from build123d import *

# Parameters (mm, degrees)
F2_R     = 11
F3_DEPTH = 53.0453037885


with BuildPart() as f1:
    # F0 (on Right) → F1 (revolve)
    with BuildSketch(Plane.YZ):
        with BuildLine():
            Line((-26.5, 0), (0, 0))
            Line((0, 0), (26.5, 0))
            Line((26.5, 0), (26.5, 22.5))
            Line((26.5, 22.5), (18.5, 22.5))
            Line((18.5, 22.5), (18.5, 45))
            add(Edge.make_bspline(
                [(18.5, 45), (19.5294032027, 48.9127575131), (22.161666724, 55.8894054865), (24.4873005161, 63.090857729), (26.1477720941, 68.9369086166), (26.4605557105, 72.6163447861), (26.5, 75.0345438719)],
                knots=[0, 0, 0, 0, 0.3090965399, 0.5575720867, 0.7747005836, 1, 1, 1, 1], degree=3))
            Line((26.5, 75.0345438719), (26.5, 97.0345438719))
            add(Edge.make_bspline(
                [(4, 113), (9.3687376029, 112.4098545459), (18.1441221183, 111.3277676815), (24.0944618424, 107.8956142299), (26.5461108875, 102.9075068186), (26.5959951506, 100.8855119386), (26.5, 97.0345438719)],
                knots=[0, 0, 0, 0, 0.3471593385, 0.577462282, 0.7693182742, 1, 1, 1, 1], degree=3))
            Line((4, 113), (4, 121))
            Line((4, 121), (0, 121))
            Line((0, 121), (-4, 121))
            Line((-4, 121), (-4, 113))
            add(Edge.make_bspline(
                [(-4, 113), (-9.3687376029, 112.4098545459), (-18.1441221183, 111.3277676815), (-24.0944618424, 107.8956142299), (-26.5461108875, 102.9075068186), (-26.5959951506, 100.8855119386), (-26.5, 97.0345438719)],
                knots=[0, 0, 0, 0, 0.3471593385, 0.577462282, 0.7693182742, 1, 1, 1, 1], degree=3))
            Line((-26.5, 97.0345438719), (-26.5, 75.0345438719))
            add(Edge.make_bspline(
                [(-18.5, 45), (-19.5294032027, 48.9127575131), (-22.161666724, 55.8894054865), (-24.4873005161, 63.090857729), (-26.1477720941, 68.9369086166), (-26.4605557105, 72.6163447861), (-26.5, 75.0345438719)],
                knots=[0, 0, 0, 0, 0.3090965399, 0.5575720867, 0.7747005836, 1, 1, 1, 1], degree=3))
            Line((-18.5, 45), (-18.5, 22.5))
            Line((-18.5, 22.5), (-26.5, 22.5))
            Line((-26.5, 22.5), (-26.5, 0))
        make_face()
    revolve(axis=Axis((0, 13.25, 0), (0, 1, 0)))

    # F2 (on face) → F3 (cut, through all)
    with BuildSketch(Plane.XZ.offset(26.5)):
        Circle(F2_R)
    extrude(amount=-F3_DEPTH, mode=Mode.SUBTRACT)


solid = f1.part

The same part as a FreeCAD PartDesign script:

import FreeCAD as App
import Part
import Sketcher
Q = App.Units.Quantity

doc = App.newDocument("Part")
body = doc.addObject("PartDesign::Body", "Body")

sketch1 = doc.addObject("Sketcher::SketchObject", "Sketch")
body.addObject(sketch1)
sketch1.AttachmentSupport = (doc.YZ_Plane, [""])
sketch1.MapMode = "FlatFace"
sketch1.addGeometry([
    Part.LineSegment(App.Vector(-26.5, 0, 0), App.Vector(26.5, 0, 0)),
    Part.LineSegment(App.Vector(26.5, 0, 0), App.Vector(26.5, 22.5, 0)),
    Part.LineSegment(App.Vector(26.5, 22.5, 0), App.Vector(18.5, 22.5, 0)),
    Part.LineSegment(App.Vector(18.5, 22.5, 0), App.Vector(18.5, 45, 0)),
    Part.BSplineCurve([App.Vector(18.5, 45, 0), App.Vector(19.529403, 48.912758, 0), App.Vector(22.161667, 55.889405, 0), App.Vector(24.487301, 63.090858, 0), App.Vector(26.147772, 68.936909, 0), App.Vector(26.460556, 72.616345, 0), App.Vector(26.5, 75.034544, 0)], [4, 1, 1, 1, 4], [0, 0.30909654, 0.557572087, 0.774700584, 1], False, 3, [1, 1, 1, 1, 1, 1, 1], False),
    Part.LineSegment(App.Vector(26.5, 75.034544, 0), App.Vector(26.5, 97.034544, 0)),
    Part.BSplineCurve([App.Vector(4, 113, 0), App.Vector(9.368738, 112.409855, 0), App.Vector(18.144122, 111.327768, 0), App.Vector(24.094462, 107.895614, 0), App.Vector(26.546111, 102.907507, 0), App.Vector(26.595995, 100.885512, 0), App.Vector(26.5, 97.034544, 0)], [4, 1, 1, 1, 4], [0, 0.347159339, 0.577462282, 0.769318274, 1], False, 3, [1, 1, 1, 1, 1, 1, 1], False),
    Part.LineSegment(App.Vector(4, 113, 0), App.Vector(4, 121, 0)),
    Part.LineSegment(App.Vector(4, 121, 0), App.Vector(-4, 121, 0)),
    Part.LineSegment(App.Vector(-4, 121, 0), App.Vector(-4, 113, 0)),
    Part.BSplineCurve([App.Vector(-4, 113, 0), App.Vector(-9.368738, 112.409855, 0), App.Vector(-18.144122, 111.327768, 0), App.Vector(-24.094462, 107.895614, 0), App.Vector(-26.546111, 102.907507, 0), App.Vector(-26.595995, 100.885512, 0), App.Vector(-26.5, 97.034544, 0)], [4, 1, 1, 1, 4], [0, 0.347159339, 0.577462282, 0.769318274, 1], False, 3, [1, 1, 1, 1, 1, 1, 1], False),
    Part.LineSegment(App.Vector(-26.5, 97.034544, 0), App.Vector(-26.5, 75.034544, 0)),
    Part.BSplineCurve([App.Vector(-18.5, 45, 0), App.Vector(-19.529403, 48.912758, 0), App.Vector(-22.161667, 55.889405, 0), App.Vector(-24.487301, 63.090858, 0), App.Vector(-26.147772, 68.936909, 0), App.Vector(-26.460556, 72.616345, 0), App.Vector(-26.5, 75.034544, 0)], [4, 1, 1, 1, 4], [0, 0.30909654, 0.557572087, 0.774700584, 1], False, 3, [1, 1, 1, 1, 1, 1, 1], False),
    Part.LineSegment(App.Vector(-18.5, 45, 0), App.Vector(-18.5, 22.5, 0)),
    Part.LineSegment(App.Vector(-18.5, 22.5, 0), App.Vector(-26.5, 22.5, 0)),
    Part.LineSegment(App.Vector(-26.5, 22.5, 0), App.Vector(-26.5, 0, 0)),
], False)
sketch1.addConstraint([
    Sketcher.Constraint("Block", 4),
    Sketcher.Constraint("Block", 6),
    Sketcher.Constraint("Block", 10),
    Sketcher.Constraint("Block", 12),
    Sketcher.Constraint("Coincident", 0, 2, 1, 1),
    Sketcher.Constraint("Coincident", 1, 2, 2, 1),
    Sketcher.Constraint("Coincident", 2, 2, 3, 1),
    Sketcher.Constraint("Coincident", 3, 2, 4, 1),
    Sketcher.Constraint("Coincident", 4, 2, 5, 1),
    Sketcher.Constraint("Coincident", 5, 2, 6, 2),
    Sketcher.Constraint("Coincident", 6, 1, 7, 1),
    Sketcher.Constraint("Coincident", 7, 2, 8, 1),
    Sketcher.Constraint("Coincident", 8, 2, 9, 1),
    Sketcher.Constraint("Coincident", 9, 2, 10, 1),
    Sketcher.Constraint("Coincident", 10, 2, 11, 1),
    Sketcher.Constraint("Coincident", 11, 2, 12, 2),
    Sketcher.Constraint("Coincident", 12, 1, 13, 1),
    Sketcher.Constraint("Coincident", 13, 2, 14, 1),
    Sketcher.Constraint("Coincident", 14, 2, 15, 1),
    Sketcher.Constraint("Coincident", 15, 2, 0, 1),
    Sketcher.Constraint("Horizontal", 0),
    Sketcher.Constraint("Vertical", 1),
    Sketcher.Constraint("Horizontal", 2),
    Sketcher.Constraint("Vertical", 3),
    Sketcher.Constraint("Vertical", 7),
    Sketcher.Constraint("Horizontal", 8),
    Sketcher.Constraint("Vertical", 9),
    Sketcher.Constraint("Vertical", 13),
    Sketcher.Constraint("Horizontal", 14),
    Sketcher.Constraint("Vertical", 15),
    Sketcher.Constraint("PointOnObject", 0, 2, -1),
    Sketcher.Constraint("DistanceX", 0, 1, 0, 2, Q("53 mm")),
    Sketcher.Constraint("DistanceX", 2, 2, 2, 1, Q("8 mm")),
    Sketcher.Constraint("DistanceY", 7, 1, 7, 2, Q("8 mm")),
    Sketcher.Constraint("DistanceY", 1, 1, 1, 2, Q("22.5 mm")),
    Sketcher.Constraint("DistanceY", 13, 2, 13, 1, Q("22.5 mm")),
])
revolution = doc.addObject("PartDesign::Revolution", "Revolution")
body.addObject(revolution)
revolution.Profile = sketch1
revolution.ReferenceAxis = (sketch1, ["H_Axis"])
revolution.Angle = 360

sketch2 = doc.addObject("Sketcher::SketchObject", "Sketch001")
body.addObject(sketch2)
sketch2.AttachmentSupport = (doc.XZ_Plane, [""])
sketch2.MapMode = "FlatFace"
sketch2.AttachmentOffset = App.Placement(App.Vector(0, 0, 26.5), App.Rotation())
sketch2.addGeometry(Part.Circle(App.Vector(0, 0, 0), App.Vector(0, 0, 1), 11), False)
sketch2.addConstraint([
    Sketcher.Constraint("Coincident", 0, 3, -1, 1),
    Sketcher.Constraint("Diameter", 0, Q("22 mm")),
])
pocket1 = doc.addObject("PartDesign::Pocket", "Pocket")
body.addObject(pocket1)
pocket1.Profile = sketch2
pocket1.Type = "ThroughAll"

doc.recompute()
